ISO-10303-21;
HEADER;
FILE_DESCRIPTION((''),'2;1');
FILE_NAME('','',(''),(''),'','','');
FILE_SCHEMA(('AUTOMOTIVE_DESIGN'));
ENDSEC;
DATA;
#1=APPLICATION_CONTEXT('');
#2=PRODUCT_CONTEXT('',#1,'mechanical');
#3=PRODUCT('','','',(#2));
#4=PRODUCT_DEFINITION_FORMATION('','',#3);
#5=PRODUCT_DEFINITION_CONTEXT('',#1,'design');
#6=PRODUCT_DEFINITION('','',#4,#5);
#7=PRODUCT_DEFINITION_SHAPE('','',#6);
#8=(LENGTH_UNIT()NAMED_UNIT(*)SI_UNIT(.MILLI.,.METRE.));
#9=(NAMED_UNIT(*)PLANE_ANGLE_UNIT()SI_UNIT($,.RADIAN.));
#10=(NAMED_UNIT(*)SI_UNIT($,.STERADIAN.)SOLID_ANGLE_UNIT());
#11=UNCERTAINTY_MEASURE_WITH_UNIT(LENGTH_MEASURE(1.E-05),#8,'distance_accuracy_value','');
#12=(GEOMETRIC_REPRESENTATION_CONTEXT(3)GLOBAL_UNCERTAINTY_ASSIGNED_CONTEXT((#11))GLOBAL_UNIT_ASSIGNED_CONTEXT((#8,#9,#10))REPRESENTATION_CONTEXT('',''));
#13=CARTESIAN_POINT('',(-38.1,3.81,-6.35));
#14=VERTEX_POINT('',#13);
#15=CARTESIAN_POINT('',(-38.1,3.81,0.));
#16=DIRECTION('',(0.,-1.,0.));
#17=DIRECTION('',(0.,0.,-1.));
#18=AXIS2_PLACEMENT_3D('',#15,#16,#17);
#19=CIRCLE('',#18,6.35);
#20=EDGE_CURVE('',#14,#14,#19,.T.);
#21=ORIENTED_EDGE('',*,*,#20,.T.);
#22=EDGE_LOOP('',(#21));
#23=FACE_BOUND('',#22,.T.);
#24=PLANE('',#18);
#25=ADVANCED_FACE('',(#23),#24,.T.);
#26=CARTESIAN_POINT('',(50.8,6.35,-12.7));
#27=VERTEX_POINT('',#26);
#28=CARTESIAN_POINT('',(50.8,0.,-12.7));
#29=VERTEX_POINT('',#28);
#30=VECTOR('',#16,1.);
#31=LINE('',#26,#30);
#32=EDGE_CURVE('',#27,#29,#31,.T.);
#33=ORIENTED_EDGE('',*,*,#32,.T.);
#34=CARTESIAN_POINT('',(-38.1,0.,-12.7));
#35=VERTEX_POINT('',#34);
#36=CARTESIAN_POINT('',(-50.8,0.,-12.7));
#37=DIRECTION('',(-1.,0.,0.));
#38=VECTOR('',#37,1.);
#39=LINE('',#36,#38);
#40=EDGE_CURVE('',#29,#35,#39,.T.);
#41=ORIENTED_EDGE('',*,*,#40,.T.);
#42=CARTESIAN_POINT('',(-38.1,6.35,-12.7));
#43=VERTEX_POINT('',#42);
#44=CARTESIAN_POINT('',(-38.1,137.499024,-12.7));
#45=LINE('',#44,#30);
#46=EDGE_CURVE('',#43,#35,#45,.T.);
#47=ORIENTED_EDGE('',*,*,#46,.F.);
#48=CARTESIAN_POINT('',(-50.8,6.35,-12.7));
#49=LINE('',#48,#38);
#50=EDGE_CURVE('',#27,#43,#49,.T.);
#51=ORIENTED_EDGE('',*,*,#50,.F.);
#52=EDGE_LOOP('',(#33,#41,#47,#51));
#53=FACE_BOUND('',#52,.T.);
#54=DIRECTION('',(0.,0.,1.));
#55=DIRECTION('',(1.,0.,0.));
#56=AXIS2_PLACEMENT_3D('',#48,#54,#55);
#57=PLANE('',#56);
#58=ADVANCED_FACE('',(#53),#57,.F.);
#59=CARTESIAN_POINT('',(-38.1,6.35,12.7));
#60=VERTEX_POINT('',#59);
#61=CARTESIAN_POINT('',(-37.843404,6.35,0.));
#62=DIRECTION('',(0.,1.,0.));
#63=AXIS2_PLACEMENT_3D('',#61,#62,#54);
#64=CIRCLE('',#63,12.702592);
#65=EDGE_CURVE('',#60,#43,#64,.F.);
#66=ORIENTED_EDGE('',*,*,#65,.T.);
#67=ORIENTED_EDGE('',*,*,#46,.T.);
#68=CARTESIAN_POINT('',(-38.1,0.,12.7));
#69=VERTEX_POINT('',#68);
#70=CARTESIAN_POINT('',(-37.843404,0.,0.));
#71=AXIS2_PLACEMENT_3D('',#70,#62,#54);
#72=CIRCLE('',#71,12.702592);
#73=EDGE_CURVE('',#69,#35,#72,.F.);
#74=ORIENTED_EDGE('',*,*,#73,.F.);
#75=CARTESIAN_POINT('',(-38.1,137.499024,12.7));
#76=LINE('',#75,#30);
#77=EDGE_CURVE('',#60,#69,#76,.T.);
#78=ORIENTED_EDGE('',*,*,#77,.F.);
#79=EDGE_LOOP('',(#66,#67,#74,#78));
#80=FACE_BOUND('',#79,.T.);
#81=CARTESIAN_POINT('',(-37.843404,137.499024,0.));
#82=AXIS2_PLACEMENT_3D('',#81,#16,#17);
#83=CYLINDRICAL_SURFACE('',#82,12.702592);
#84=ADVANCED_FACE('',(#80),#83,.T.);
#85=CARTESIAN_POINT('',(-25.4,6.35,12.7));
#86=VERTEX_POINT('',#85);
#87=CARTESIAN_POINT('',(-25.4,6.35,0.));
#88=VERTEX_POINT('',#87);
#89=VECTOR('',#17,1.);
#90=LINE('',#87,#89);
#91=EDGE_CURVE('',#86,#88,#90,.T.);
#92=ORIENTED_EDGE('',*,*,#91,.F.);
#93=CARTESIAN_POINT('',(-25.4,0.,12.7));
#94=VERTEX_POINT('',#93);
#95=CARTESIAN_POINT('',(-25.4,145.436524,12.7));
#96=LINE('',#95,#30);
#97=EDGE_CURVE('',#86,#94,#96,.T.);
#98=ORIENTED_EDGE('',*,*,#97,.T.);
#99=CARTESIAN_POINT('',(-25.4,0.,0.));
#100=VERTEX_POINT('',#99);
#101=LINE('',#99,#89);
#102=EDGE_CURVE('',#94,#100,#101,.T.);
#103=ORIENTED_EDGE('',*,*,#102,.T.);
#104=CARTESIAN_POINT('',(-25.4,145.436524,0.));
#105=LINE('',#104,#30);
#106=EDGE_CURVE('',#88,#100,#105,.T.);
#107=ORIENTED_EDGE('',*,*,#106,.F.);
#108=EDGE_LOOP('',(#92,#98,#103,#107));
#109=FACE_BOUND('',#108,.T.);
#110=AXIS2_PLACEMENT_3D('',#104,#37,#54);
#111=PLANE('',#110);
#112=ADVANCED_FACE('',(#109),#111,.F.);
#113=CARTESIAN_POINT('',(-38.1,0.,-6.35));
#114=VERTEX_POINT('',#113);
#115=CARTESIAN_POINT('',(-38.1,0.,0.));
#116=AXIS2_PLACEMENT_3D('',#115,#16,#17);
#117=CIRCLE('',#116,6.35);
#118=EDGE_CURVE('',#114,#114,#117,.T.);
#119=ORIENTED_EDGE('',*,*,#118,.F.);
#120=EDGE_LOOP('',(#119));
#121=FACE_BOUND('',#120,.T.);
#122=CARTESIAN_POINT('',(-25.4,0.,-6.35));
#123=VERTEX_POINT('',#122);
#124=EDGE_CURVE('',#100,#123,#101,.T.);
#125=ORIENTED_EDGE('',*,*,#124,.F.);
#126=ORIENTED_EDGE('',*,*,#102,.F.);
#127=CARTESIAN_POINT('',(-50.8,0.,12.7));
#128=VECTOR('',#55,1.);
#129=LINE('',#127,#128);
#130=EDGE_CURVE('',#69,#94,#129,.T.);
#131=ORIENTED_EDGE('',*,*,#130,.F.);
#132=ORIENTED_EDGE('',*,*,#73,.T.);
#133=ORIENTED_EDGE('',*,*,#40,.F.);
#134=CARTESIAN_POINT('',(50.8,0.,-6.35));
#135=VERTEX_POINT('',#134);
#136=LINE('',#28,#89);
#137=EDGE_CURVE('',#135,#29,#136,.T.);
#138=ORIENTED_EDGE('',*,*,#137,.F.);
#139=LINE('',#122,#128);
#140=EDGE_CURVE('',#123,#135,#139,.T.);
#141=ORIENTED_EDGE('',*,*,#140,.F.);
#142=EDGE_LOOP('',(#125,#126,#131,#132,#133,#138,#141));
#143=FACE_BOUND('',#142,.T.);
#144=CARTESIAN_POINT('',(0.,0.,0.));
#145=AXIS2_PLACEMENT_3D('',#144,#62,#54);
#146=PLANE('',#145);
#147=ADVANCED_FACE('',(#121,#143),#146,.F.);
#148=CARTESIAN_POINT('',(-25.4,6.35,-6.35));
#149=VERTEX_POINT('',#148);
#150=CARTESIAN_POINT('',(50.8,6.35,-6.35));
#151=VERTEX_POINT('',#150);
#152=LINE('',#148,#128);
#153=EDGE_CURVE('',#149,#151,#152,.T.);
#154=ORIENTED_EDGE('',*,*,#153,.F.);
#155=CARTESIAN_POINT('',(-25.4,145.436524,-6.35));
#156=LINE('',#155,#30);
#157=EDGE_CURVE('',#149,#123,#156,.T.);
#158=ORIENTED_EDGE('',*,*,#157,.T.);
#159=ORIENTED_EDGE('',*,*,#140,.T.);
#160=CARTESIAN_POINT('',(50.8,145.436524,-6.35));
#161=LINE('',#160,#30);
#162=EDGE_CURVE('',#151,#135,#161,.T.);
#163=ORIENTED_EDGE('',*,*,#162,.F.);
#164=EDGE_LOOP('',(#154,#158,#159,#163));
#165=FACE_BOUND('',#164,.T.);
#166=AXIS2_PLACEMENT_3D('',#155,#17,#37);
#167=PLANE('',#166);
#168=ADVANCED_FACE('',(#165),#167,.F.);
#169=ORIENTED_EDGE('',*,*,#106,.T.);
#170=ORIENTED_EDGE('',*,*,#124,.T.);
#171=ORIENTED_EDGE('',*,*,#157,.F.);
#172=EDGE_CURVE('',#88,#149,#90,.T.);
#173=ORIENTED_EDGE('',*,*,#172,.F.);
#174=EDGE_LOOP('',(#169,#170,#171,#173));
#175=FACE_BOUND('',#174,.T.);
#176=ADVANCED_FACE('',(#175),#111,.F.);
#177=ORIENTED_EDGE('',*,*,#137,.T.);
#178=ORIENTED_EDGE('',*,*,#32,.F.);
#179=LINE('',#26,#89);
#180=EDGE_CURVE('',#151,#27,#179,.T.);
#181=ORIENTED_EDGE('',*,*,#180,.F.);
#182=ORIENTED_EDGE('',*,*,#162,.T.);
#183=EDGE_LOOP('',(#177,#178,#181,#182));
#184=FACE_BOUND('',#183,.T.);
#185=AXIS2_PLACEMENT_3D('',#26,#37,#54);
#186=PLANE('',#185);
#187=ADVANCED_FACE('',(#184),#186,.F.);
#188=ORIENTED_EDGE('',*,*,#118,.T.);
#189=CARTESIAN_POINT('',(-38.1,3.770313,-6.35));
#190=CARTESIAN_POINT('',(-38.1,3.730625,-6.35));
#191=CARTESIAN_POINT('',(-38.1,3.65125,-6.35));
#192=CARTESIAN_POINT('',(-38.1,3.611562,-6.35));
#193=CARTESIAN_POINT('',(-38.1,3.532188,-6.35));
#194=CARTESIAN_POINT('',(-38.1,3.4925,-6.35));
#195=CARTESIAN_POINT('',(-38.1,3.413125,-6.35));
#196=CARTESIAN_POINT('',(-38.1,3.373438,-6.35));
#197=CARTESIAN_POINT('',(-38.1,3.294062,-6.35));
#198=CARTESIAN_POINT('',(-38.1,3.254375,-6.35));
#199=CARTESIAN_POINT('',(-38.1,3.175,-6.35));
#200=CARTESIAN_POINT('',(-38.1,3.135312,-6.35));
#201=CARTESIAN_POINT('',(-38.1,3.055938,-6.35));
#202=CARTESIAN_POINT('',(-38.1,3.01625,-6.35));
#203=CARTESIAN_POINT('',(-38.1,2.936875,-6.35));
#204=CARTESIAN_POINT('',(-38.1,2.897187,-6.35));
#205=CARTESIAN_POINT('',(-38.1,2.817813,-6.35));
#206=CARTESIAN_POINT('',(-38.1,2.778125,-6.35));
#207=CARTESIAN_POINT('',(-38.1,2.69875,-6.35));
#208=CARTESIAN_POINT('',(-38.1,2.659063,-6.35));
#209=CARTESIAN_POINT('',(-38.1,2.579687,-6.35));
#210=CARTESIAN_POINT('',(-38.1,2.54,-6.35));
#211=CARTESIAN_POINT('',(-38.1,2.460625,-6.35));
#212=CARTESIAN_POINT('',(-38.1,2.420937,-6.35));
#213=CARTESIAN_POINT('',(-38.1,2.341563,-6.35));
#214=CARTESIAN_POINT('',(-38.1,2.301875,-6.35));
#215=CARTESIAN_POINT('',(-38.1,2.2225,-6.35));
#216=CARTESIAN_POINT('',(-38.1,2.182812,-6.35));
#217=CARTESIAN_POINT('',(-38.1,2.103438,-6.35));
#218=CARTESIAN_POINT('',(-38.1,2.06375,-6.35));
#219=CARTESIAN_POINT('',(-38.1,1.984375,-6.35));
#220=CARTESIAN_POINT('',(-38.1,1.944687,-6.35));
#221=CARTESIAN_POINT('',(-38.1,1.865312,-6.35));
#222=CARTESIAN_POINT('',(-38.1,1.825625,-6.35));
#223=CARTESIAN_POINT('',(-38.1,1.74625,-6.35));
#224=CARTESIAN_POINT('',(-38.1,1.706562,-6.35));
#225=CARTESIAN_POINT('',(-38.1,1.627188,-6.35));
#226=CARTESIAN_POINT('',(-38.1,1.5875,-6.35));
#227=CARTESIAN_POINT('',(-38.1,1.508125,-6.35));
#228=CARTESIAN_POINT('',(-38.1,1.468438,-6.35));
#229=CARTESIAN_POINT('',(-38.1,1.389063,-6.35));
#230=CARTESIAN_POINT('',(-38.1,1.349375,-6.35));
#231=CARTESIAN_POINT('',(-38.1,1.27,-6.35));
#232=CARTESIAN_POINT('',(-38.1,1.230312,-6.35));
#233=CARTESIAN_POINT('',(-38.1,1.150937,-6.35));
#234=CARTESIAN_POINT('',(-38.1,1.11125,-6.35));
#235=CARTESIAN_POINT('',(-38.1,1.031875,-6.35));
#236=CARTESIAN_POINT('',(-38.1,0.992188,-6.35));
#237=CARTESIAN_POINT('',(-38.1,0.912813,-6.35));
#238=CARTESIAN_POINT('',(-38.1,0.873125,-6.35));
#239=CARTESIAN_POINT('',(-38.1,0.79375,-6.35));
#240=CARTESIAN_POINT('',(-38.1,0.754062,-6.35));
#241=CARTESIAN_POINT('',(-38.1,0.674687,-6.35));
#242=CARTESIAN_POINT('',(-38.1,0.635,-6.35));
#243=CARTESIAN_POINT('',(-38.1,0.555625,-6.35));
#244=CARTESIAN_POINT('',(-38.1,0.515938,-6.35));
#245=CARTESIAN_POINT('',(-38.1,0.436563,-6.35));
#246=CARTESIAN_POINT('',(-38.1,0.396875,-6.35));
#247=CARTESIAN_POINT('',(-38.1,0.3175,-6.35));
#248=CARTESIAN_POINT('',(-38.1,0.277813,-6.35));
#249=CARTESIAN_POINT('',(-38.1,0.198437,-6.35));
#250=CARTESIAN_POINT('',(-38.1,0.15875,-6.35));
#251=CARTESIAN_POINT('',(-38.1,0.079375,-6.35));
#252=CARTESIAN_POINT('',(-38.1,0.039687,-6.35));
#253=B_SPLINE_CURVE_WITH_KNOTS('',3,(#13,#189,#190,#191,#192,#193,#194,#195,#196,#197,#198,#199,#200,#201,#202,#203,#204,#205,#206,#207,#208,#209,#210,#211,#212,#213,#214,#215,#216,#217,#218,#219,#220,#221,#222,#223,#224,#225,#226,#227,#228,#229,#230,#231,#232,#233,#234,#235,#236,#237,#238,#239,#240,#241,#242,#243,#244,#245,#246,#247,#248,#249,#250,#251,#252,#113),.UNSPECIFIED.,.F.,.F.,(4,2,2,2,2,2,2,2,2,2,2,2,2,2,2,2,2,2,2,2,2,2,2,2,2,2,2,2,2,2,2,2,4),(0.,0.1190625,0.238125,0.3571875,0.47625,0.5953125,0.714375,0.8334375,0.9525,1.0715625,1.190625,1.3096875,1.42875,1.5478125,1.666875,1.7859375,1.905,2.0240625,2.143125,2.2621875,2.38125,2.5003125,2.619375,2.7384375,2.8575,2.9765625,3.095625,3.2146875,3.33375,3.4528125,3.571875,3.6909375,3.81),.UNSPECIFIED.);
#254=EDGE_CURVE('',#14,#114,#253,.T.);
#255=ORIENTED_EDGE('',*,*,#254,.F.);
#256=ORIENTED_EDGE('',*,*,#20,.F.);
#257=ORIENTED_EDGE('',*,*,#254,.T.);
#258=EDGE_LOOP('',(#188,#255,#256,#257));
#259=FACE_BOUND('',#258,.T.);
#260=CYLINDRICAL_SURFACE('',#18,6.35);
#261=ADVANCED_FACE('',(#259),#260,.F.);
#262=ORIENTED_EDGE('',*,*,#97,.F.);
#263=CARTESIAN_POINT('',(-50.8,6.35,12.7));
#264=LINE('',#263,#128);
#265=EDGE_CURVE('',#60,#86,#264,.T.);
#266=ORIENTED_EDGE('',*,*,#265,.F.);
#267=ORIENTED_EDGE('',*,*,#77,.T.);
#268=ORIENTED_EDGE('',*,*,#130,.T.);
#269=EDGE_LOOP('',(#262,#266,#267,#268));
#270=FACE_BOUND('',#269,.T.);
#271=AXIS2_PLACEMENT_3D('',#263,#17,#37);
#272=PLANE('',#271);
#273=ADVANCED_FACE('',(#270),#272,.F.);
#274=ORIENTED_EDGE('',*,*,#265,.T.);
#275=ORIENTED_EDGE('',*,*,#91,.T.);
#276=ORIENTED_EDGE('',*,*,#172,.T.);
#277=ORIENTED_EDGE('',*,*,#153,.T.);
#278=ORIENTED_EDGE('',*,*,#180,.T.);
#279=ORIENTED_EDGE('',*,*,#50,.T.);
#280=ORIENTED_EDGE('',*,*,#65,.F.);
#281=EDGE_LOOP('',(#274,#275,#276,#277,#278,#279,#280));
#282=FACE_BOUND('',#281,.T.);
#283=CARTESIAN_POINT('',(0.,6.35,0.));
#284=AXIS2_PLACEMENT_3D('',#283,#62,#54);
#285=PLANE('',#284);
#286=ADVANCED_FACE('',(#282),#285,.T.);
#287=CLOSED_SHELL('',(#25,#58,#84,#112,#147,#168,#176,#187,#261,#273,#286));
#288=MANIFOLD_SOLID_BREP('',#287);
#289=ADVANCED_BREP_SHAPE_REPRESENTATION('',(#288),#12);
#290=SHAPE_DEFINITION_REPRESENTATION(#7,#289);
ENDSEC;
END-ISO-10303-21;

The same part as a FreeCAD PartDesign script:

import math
import FreeCAD as App
import Part
import Sketcher
from FreeCAD import Vector
Q = App.Units.Quantity

doc = App.newDocument("Part")
body = doc.addObject("PartDesign::Body", "Body")

# Sketch on XZ plane
sketch1 = body.newObject("Sketcher::SketchObject", "Sketch")
sketch1.AttachmentSupport = (doc.getObject("XZ_Plane"), [""])
sketch1.MapMode = "FlatFace"
sketch1.addGeometry([
    Part.LineSegment(Vector(-50.8, -12.7, 0), Vector(-50.8, 12.7, 0)),
    Part.LineSegment(Vector(-50.8, 12.7, 0), Vector(50.8, 12.7, 0)),
    Part.LineSegment(Vector(50.8, 12.7, 0), Vector(50.8, -12.7, 0)),
    Part.LineSegment(Vector(50.8, -12.7, 0), Vector(-50.8, -12.7, 0)),
], False)
sketch1.addConstraint([
    Sketcher.Constraint("Coincident", 0, 2, 1, 1),
    Sketcher.Constraint("Coincident", 1, 2, 2, 1),
    Sketcher.Constraint("Coincident", 2, 2, 3, 1),
    Sketcher.Constraint("Coincident", 3, 2, 0, 1),
    Sketcher.Constraint("Vertical", 0),
    Sketcher.Constraint("Horizontal", 1),
    Sketcher.Constraint("Vertical", 2),
    Sketcher.Constraint("Horizontal", 3),
    Sketcher.Constraint("Symmetric", 0, 2, 2, 2, -1, 1),
    Sketcher.Constraint("DistanceX", 1, 1, 1, 2, Q("4 in")),
    Sketcher.Constraint("DistanceY", 0, 1, 0, 2, Q("1 in")),
])
pad1 = body.newObject("PartDesign::Pad", "Pad")
pad1.Profile = sketch1
pad1.Length = Q("0.25 in")
pad1.Reversed = True

# Sketch on XZ plane
sketch2 = body.newObject("Sketcher::SketchObject", "Sketch001")
sketch2.AttachmentSupport = (doc.getObject("XZ_Plane"), [""])
sketch2.MapMode = "FlatFace"
sketch2.addGeometry(Part.Circle(Vector(-38.1, 0, 0), Vector(0, 0, 1), 6.35), False)
sketch2.addConstraint([
    Sketcher.Constraint("PointOnObject", 0, 3, -1),
    Sketcher.Constraint("Diameter", 0, Q("0.5 in")),
    Sketcher.Constraint("DistanceX", 0, 3, -1, 1, Q("1.5 in")),
])
pocket1 = body.newObject("PartDesign::Pocket", "Pocket")
pocket1.Profile = sketch2
pocket1.Length = Q("0.15 in")

# Sketch on XZ plane
sketch3 = body.newObject("Sketcher::SketchObject", "Sketch002")
sketch3.AttachmentSupport = (doc.getObject("XZ_Plane"), [""])
sketch3.MapMode = "FlatFace"
sketch3.AttachmentOffset = App.Placement(Vector(0, 0, -0.25 * 25.4), App.Rotation())
sketch3.addGeometry([
    Part.LineSegment(Vector(267.541022, -6.35, 0), Vector(-25.4, -6.35, 0)),  # 0
    Part.LineSegment(Vector(-25.4, -6.35, 0), Vector(-25.4, 229.441022, 0)),  # 1
    Part.LineSegment(Vector(-25.4, 229.441022, 0), Vector(246.40377, 567.123405, 0)),  # 2
    Part.LineSegment(Vector(246.40377, 567.123405, 0), Vector(539.344792, 331.332383, 0)),  # 3
    Part.LineSegment(Vector(539.344792, 331.332383, 0), Vector(267.541022, -6.35, 0)),  # 4
], False)
sketch3.addConstraint([
    Sketcher.Constraint("Coincident", 0, 2, 1, 1),
    Sketcher.Constraint("Coincident", 1, 2, 2, 1),
    Sketcher.Constraint("Coincident", 2, 2, 3, 1),
    Sketcher.Constraint("Coincident", 3, 2, 4, 1),
    Sketcher.Constraint("Coincident", 4, 2, 0, 1),
    Sketcher.Constraint("Horizontal", 0),
    Sketcher.Constraint("Vertical", 1),
    Sketcher.Constraint("Perpendicular", 2, 3),
    Sketcher.Constraint("Perpendicular", 3, 4),
    Sketcher.Constraint("Equal", 2, 4),
    Sketcher.Constraint("DistanceX", 0, 2, -1, 1, Q("1 in")),
    Sketcher.Constraint("DistanceY", 0, 2, -1, 1, Q("0.25 in")),
    Sketcher.Constraint("DistanceX", 0, 2, 0, 1, 292.941022),
    Sketcher.Constraint("DistanceY", 1, 1, 1, 2, 235.791022),
    Sketcher.Constraint("DistanceX", -1, 1, 2, 2, 246.40377),
])
pocket2 = body.newObject("PartDesign::Pocket", "Pocket001")
pocket2.Profile = sketch3
pocket2.Type = "ThroughAll"
pocket2.Midplane = True

# Sketch on XZ plane
sketch4 = body.newObject("Sketcher::SketchObject", "Sketch003")
sketch4.AttachmentSupport = (doc.getObject("XZ_Plane"), [""])
sketch4.MapMode = "FlatFace"
sketch4.AttachmentOffset = App.Placement(Vector(0, 0, -0.25 * 25.4), App.Rotation())
sketch4.addGeometry([
    Part.LineSegment(Vector(156.775019, 16.637334, 0), Vector(-38.1, 12.7, 0)),  # 0
    Part.ArcOfCircle(Part.Circle(Vector(-37.843404, 0, 0), Vector(0, 0, 1), 12.702592), math.radians(91.15747), math.radians(268.84253)),  # 1
    Part.LineSegment(Vector(-38.1, -12.7, 0), Vector(156.775019, -16.637334, 0)),  # 2
    Part.LineSegment(Vector(156.775019, -16.637334, 0), Vector(-233.054563, -16.637334, 0)),  # 3
    Part.LineSegment(Vector(-233.054563, -16.637334, 0), Vector(-233.054563, 16.637334, 0)),  # 4
    Part.LineSegment(Vector(-233.054563, 16.637334, 0), Vector(156.775019, 16.637334, 0)),  # 5
], False)
sketch4.addConstraint([
    Sketcher.Constraint("Tangent", 0, 2, 1, 1),
    Sketcher.Constraint("Tangent", 1, 2, 2, 1),
    Sketcher.Constraint("Coincident", 2, 2, 3, 1),
    Sketcher.Constraint("Coincident", 3, 2, 4, 1),
    Sketcher.Constraint("Coincident", 4, 2, 5, 1),
    Sketcher.Constraint("Coincident", 5, 2, 0, 1),
    Sketcher.Constraint("Horizontal", 3),
    Sketcher.Constraint("Vertical", 4),
    Sketcher.Constraint("Horizontal", 5),
    Sketcher.Constraint("Symmetric", 0, 2, 1, 2, -1),
    Sketcher.Constraint("Vertical", 2, 2, 5, 2),
    Sketcher.Constraint("DistanceY", 1, 2, 0, 2, Q("1 in")),
    Sketcher.Constraint("DistanceX", 0, 2, -1, 1, Q("1.5 in")),
    Sketcher.Constraint("DistanceY", 4, 1, 4, 2, 33.274669),
    Sketcher.Constraint("Distance", 0, 194.914791),
    Sketcher.Constraint("DistanceX", 3, 2, 3, 1, 389.829582),
])
pocket3 = body.newObject("PartDesign::Pocket", "Pocket002")
pocket3.Profile = sketch4
pocket3.Type = "ThroughAll"
pocket3.Midplane = True

doc.recompute()
